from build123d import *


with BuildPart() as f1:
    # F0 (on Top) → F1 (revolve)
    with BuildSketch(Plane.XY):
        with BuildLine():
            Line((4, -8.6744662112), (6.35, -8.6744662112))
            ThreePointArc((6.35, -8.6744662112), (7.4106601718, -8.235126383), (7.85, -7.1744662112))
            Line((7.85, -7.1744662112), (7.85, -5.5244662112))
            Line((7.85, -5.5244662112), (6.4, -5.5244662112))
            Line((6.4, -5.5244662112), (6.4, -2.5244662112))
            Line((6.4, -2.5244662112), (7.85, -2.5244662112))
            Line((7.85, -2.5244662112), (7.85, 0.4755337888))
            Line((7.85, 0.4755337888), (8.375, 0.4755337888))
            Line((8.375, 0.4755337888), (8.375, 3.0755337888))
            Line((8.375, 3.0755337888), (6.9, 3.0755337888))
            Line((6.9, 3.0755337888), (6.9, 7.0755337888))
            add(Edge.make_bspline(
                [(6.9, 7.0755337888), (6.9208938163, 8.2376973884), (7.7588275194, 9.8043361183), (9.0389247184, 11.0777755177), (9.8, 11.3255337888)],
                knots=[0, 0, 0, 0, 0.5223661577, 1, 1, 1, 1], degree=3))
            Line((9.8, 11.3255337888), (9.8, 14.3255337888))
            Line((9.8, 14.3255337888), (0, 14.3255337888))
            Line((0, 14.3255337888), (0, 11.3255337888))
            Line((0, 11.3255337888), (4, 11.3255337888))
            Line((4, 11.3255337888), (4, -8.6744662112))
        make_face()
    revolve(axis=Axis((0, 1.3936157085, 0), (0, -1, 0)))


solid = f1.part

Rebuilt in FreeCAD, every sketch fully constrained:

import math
import FreeCAD as App
import Part
import Sketcher

V = App.Vector

doc = App.newDocument("Part")
body = doc.addObject("PartDesign::Body", "Body")

# Sketch on XY plane
sketch1 = body.newObject("Sketcher::SketchObject", "Sketch")
sketch1.AttachmentSupport = (doc.getObject("XY_Plane"), [""])
sketch1.MapMode = "FlatFace"
sketch1.addGeometry([
    Part.LineSegment(V(4, -8.674466, 0), V(6.35, -8.674466, 0)),  # 0
    Part.ArcOfCircle(Part.Circle(V(6.35, -7.174466, 0), V(0, 0, 1), 1.5), math.radians(-90), math.radians(0)),  # 1
    Part.LineSegment(V(7.85, -7.174466, 0), V(7.85, -5.524466, 0)),  # 2
    Part.LineSegment(V(7.85, -5.524466, 0), V(6.4, -5.524466, 0)),  # 3
    Part.LineSegment(V(6.4, -5.524466, 0), V(6.4, -2.524466, 0)),  # 4
    Part.LineSegment(V(6.4, -2.524466, 0), V(7.85, -2.524466, 0)),  # 5
    Part.LineSegment(V(7.85, -2.524466, 0), V(7.85, 0.475534, 0)),  # 6
    Part.LineSegment(V(7.85, 0.475534, 0), V(8.375, 0.475534, 0)),  # 7
    Part.LineSegment(V(8.375, 0.475534, 0), V(8.375, 3.075534, 0)),  # 8
    Part.LineSegment(V(8.375, 3.075534, 0), V(6.9, 3.075534, 0)),  # 9
    Part.LineSegment(V(6.9, 3.075534, 0), V(6.9, 7.075534, 0)),  # 10
    Part.BSplineCurve([V(6.9, 7.075534, 0), V(6.920894, 8.237697, 0), V(7.758828, 9.804336, 0), V(9.038925, 11.077776, 0), V(9.8, 11.325534, 0)], [4, 1, 4], [0, 0.522366158, 1], False, 3, [1, 1, 1, 1, 1], False),  # 11
    Part.LineSegment(V(9.8, 11.325534, 0), V(9.8, 14.325534, 0)),  # 12
    Part.LineSegment(V(9.8, 14.325534, 0), V(0, 14.325534, 0)),  # 13
    Part.LineSegment(V(0, 14.325534, 0), V(0, 11.325534, 0)),  # 14
    Part.LineSegment(V(0, 11.325534, 0), V(4, 11.325534, 0)),  # 15
    Part.LineSegment(V(4, 11.325534, 0), V(4, -8.674466, 0)),  # 16
], False)
sketch1.addConstraint([
    Sketcher.Constraint("Block", 11),
    Sketcher.Constraint("Tangent", 0, 2, 1, 1),
    Sketcher.Constraint("Tangent", 1, 2, 2, 1),
    Sketcher.Constraint("Coincident", 2, 2, 3, 1),
    Sketcher.Constraint("Coincident", 3, 2, 4, 1),
    Sketcher.Constraint("Coincident", 4, 2, 5, 1),
    Sketcher.Constraint("Coincident", 5, 2, 6, 1),
    Sketcher.Constraint("Coincident", 6, 2, 7, 1),
    Sketcher.Constraint("Coincident", 7, 2, 8, 1),
    Sketcher.Constraint("Coincident", 8, 2, 9, 1),
    Sketcher.Constraint("Coincident", 9, 2, 10, 1),
    Sketcher.Constraint("Coincident", 10, 2, 11, 1),
    Sketcher.Constraint("Coincident", 11, 2, 12, 1),
    Sketcher.Constraint("Coincident", 12, 2, 13, 1),
    Sketcher.Constraint("Coincident", 13, 2, 14, 1),
    Sketcher.Constraint("Coincident", 14, 2, 15, 1),
    Sketcher.Constraint("Coincident", 15, 2, 16, 1),
    Sketcher.Constraint("Coincident", 16, 2, 0, 1),
    Sketcher.Constraint("Horizontal", 0),
    Sketcher.Constraint("Vertical", 2),
    Sketcher.Constraint("Horizontal", 3),
    Sketcher.Constraint("Vertical", 4),
    Sketcher.Constraint("Horizontal", 5),
    Sketcher.Constraint("Vertical", 6),
    Sketcher.Constraint("Horizontal", 7),
    Sketcher.Constraint("Vertical", 8),
    Sketcher.Constraint("Horizontal", 9),
    Sketcher.Constraint("Vertical", 10),
    Sketcher.Constraint("Vertical", 12),
    Sketcher.Constraint("Horizontal", 13),
    Sketcher.Constraint("Vertical", 14),
    Sketcher.Constraint("Horizontal", 15),
    Sketcher.Constraint("Vertical", 16),
    Sketcher.Constraint("PointOnObject", 13, 2, -2),
    Sketcher.Constraint("Vertical", 2, 2, 5, 2),
    Sketcher.Constraint("Equal", 4, 6),
    Sketcher.Constraint("Equal", 15, 10),
    Sketcher.Constraint("Equal", 6, 12),
    Sketcher.Constraint("Equal", 12, 14),
    Sketcher.Constraint("Radius", 1, 1.5),
    Sketcher.Constraint("DistanceX", 15, 1, 15, 2, 4.0),
    Sketcher.Constraint("DistanceY", 4, 1, 4, 2, 3.0),
    Sketcher.Constraint("DistanceY", 16, 2, 16, 1, 20.0),
    Sketcher.Constraint("DistanceY", 8, 1, 8, 2, 2.6),
    Sketcher.Constraint("DistanceX", 0, 1, 0, 2, 2.35),
    Sketcher.Constraint("DistanceX", 3, 2, 3, 1, 1.45),
    Sketcher.Constraint("DistanceX", 7, 1, 7, 2, 0.525),
])
revolution = body.newObject("PartDesign::Revolution", "Revolution")
revolution.Profile = sketch1
revolution.ReferenceAxis = (sketch1, ["V_Axis"])
revolution.Angle = 360

doc.recompute()
